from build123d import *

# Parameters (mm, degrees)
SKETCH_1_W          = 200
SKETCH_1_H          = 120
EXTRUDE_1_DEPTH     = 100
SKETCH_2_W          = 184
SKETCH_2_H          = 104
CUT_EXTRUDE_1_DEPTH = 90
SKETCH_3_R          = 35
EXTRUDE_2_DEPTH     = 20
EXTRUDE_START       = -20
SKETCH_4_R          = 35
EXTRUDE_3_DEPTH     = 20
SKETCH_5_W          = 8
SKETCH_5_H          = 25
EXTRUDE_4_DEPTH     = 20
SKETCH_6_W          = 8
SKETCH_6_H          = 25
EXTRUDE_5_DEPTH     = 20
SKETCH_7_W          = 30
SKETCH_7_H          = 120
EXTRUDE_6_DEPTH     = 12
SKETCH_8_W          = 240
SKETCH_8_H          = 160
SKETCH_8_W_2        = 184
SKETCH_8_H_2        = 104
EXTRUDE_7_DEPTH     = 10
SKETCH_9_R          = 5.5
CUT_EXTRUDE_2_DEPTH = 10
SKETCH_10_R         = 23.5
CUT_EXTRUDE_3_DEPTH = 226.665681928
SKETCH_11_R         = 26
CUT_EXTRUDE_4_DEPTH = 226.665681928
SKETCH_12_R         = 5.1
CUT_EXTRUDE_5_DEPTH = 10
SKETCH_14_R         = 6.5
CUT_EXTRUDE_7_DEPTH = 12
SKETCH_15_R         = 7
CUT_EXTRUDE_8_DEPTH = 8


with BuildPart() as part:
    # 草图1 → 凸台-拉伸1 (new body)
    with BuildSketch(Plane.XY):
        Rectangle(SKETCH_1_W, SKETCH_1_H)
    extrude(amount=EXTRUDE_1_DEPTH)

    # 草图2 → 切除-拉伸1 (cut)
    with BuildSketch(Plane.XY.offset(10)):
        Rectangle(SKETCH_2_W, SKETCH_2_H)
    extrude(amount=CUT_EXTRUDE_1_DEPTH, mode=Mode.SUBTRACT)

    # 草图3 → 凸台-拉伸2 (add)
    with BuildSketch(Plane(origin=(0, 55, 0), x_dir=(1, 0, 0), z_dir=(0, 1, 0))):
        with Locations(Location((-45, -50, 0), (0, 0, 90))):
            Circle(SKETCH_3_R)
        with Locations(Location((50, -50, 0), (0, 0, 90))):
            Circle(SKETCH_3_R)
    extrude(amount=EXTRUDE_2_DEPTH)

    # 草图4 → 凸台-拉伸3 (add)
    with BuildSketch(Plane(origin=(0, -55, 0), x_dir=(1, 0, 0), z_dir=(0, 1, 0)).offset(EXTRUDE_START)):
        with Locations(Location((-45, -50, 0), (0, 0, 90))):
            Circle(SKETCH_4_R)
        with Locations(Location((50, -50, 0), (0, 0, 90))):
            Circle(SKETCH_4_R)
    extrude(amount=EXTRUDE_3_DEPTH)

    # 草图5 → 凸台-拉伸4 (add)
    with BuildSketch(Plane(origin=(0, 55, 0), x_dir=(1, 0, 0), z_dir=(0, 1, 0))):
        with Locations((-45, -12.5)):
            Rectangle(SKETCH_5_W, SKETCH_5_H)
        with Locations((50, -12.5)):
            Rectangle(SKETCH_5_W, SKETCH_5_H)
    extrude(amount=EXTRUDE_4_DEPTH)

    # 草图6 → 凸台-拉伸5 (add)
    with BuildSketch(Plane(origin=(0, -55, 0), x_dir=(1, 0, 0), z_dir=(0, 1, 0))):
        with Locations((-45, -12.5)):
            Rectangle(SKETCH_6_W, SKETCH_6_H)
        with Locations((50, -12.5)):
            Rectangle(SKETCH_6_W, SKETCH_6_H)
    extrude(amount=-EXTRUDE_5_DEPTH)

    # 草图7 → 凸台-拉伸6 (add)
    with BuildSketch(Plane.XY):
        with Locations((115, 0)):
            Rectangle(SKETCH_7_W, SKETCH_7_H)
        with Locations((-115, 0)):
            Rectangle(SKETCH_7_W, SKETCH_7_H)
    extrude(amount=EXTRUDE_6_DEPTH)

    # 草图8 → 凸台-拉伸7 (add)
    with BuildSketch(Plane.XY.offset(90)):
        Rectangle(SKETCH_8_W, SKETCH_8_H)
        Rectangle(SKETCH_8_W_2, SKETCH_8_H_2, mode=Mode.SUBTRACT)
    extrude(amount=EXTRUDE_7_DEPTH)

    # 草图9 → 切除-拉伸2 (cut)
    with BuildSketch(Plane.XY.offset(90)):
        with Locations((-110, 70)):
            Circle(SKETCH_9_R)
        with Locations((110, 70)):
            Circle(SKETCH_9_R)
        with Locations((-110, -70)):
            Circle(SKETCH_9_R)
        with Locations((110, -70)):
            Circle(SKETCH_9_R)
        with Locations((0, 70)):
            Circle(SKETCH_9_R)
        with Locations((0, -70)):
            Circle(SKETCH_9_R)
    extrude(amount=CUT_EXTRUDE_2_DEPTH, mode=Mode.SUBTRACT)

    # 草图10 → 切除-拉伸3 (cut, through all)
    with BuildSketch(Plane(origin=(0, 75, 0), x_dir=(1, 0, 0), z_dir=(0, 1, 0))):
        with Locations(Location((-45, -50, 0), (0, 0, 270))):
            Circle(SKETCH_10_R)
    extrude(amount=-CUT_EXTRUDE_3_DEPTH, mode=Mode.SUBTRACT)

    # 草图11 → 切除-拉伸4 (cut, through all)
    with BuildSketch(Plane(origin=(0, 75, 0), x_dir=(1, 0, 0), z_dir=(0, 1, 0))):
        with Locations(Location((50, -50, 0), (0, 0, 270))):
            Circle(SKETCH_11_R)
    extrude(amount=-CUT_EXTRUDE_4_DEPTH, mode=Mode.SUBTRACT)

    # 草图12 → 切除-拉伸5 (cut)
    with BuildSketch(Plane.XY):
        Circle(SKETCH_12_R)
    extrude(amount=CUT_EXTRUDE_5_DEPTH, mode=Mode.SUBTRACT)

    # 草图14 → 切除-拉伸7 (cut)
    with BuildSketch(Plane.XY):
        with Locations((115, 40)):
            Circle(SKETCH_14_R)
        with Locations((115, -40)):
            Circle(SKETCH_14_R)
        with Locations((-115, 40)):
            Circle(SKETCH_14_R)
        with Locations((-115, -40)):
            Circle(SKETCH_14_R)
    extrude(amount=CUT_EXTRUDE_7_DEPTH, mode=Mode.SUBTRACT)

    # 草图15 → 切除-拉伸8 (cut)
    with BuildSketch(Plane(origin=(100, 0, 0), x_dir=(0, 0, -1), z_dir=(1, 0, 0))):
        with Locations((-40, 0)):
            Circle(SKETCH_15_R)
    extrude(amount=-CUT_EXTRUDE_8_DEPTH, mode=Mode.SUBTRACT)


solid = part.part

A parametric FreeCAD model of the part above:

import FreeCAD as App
import Part
import Sketcher
from FreeCAD import Vector


def add_polygon(sketch, points):
    """Adds a closed chain of lines whose ends are joined by coincident constraints."""
    first, n = sketch.GeometryCount, len(points)
    for a, b in zip(points, points[1:] + points[:1]):
        sketch.addGeometry(Part.LineSegment(App.Vector(*a, 0), App.Vector(*b, 0)), False)
    for i in range(n):
        sketch.addConstraint(Sketcher.Constraint("Coincident", first + i, 2, first + (i + 1) % n, 1))

doc = App.newDocument("Part")
body = doc.addObject("PartDesign::Body", "Body")

sketch1 = body.newObject("Sketcher::SketchObject", "Sketch")
sketch1.AttachmentSupport = (doc.getObject("XY_Plane"), [""])
sketch1.MapMode = "FlatFace"
add_polygon(sketch1, [(-100, 60), (-100, -60), (100, -60), (100, 60)])
sketch1.addConstraint([
    Sketcher.Constraint("Vertical", 0),
    Sketcher.Constraint("Horizontal", 1),
    Sketcher.Constraint("Vertical", 2),
    Sketcher.Constraint("Horizontal", 3),
    Sketcher.Constraint("Symmetric", 0, 2, 2, 2, -1, 1),
    Sketcher.Constraint("DistanceX", 1, 1, 1, 2, 200.0),
    Sketcher.Constraint("DistanceY", 0, 2, 0, 1, 120.0),
])
pad1 = body.newObject("PartDesign::Pad", "Pad")
pad1.Profile = sketch1
pad1.Length = 100

sketch2 = body.newObject("Sketcher::SketchObject", "Sketch001")
sketch2.AttachmentSupport = (doc.getObject("XY_Plane"), [""])
sketch2.MapMode = "FlatFace"
sketch2.AttachmentOffset = App.Placement(Vector(0, 0, 10), App.Rotation())
add_polygon(sketch2, [(-92, 52), (-92, -52), (92, -52), (92, 52)])
sketch2.addConstraint([
    Sketcher.Constraint("Vertical", 0),
    Sketcher.Constraint("Horizontal", 1),
    Sketcher.Constraint("Vertical", 2),
    Sketcher.Constraint("Horizontal", 3),
    Sketcher.Constraint("Symmetric", 0, 2, 2, 2, -1, 1),
    Sketcher.Constraint("DistanceX", 1, 1, 1, 2, 184.0),
    Sketcher.Constraint("DistanceY", 0, 2, 0, 1, 104.0),
])
pocket1 = body.newObject("PartDesign::Pocket", "Pocket")
pocket1.Profile = sketch2
pocket1.Length = 90
pocket1.Reversed = True

sketch3 = body.newObject("Sketcher::SketchObject", "Sketch002")
sketch3.AttachmentSupport = (doc.getObject("XZ_Plane"), [""])
sketch3.MapMode = "FlatFace"
sketch3.AttachmentOffset = App.Placement(Vector(0, 0, -55), App.Rotation())
sketch3.addGeometry([
    Part.Circle(Vector(-45, 50, 0), Vector(0, 0, 1), 35),
    Part.Circle(Vector(50, 50, 0), Vector(0, 0, 1), 35),
], False)
sketch3.addConstraint([
    Sketcher.Constraint("Equal", 0, 1),
    Sketcher.Constraint("Horizontal", 0, 3, 1, 3),
    Sketcher.Constraint("Diameter", 0, 70.0),
    Sketcher.Constraint("DistanceX", 0, 3, -1, 1, 45.0),
    Sketcher.Constraint("DistanceY", -1, 1, 0, 3, 50.0),
    Sketcher.Constraint("DistanceX", -1, 1, 1, 3, 50.0),
])
pad2 = body.newObject("PartDesign::Pad", "Pad001")
pad2.Profile = sketch3
pad2.Length = 20
pad2.Reversed = True

sketch4 = body.newObject("Sketcher::SketchObject", "Sketch003")
sketch4.AttachmentSupport = (doc.getObject("XZ_Plane"), [""])
sketch4.MapMode = "FlatFace"
sketch4.AttachmentOffset = App.Placement(Vector(0, 0, 75), App.Rotation())
sketch4.addGeometry([
    Part.Circle(Vector(-45, 50, 0), Vector(0, 0, 1), 35),
    Part.Circle(Vector(50, 50, 0), Vector(0, 0, 1), 35),
], False)
sketch4.addConstraint([
    Sketcher.Constraint("Equal", 0, 1),
    Sketcher.Constraint("Horizontal", 0, 3, 1, 3),
    Sketcher.Constraint("Diameter", 0, 70.0),
    Sketcher.Constraint("DistanceX", 0, 3, -1, 1, 45.0),
    Sketcher.Constraint("DistanceY", -1, 1, 0, 3, 50.0),
    Sketcher.Constraint("DistanceX", -1, 1, 1, 3, 50.0),
])
pad3 = body.newObject("PartDesign::Pad", "Pad002")
pad3.Profile = sketch4
pad3.Length = 20
pad3.Reversed = True

sketch5 = body.newObject("Sketcher::SketchObject", "Sketch004")
sketch5.AttachmentSupport = (doc.getObject("XZ_Plane"), [""])
sketch5.MapMode = "FlatFace"
sketch5.AttachmentOffset = App.Placement(Vector(0, 0, -55), App.Rotation())
add_polygon(sketch5, [(-49, 0), (-49, 25), (-41, 25), (-41, 0)])
add_polygon(sketch5, [(46, 0), (46, 25), (54, 25), (54, 0)])
sketch5.addConstraint([
    Sketcher.Constraint("Vertical", 0),
    Sketcher.Constraint("Horizontal", 1),
    Sketcher.Constraint("Vertical", 2),
    Sketcher.Constraint("Horizontal", 3),
    Sketcher.Constraint("Vertical", 4),
    Sketcher.Constraint("Horizontal", 5),
    Sketcher.Constraint("Vertical", 6),
    Sketcher.Constraint("Horizontal", 7),
    Sketcher.Constraint("PointOnObject", 2, 2, -1),
    Sketcher.Constraint("PointOnObject", 6, 2, -1),
    Sketcher.Constraint("Horizontal", 1, 2, 4, 2),
    Sketcher.Constraint("Equal", 3, 5),
    Sketcher.Constraint("DistanceX", 1, 1, 1, 2, 8.0),
    Sketcher.Constraint("DistanceY", 0, 1, 0, 2, 25.0),
    Sketcher.Constraint("DistanceX", 0, 2, -1, 1, 49.0),
    Sketcher.Constraint("DistanceX", -1, 1, 4, 2, 46.0),
])
pad4 = body.newObject("PartDesign::Pad", "Pad003")
pad4.Profile = sketch5
pad4.Length = 20
pad4.Reversed = True

sketch6 = body.newObject("Sketcher::SketchObject", "Sketch005")
sketch6.AttachmentSupport = (doc.getObject("XZ_Plane"), [""])
sketch6.MapMode = "FlatFace"
sketch6.AttachmentOffset = App.Placement(Vector(0, 0, 55), App.Rotation())
add_polygon(sketch6, [(-49, 0), (-49, 25), (-41, 25), (-41, 0)])
add_polygon(sketch6, [(46, 0), (46, 25), (54, 25), (54, 0)])
sketch6.addConstraint([
    Sketcher.Constraint("Vertical", 0),
    Sketcher.Constraint("Horizontal", 1),
    Sketcher.Constraint("Vertical", 2),
    Sketcher.Constraint("Horizontal", 3),
    Sketcher.Constraint("Vertical", 4),
    Sketcher.Constraint("Horizontal", 5),
    Sketcher.Constraint("Vertical", 6),
    Sketcher.Constraint("Horizontal", 7),
    Sketcher.Constraint("PointOnObject", 2, 2, -1),
    Sketcher.Constraint("PointOnObject", 6, 2, -1),
    Sketcher.Constraint("Horizontal", 1, 2, 4, 2),
    Sketcher.Constraint("Equal", 3, 5),
    Sketcher.Constraint("DistanceX", 1, 1, 1, 2, 8.0),
    Sketcher.Constraint("DistanceY", 0, 1, 0, 2, 25.0),
    Sketcher.Constraint("DistanceX", 0, 2, -1, 1, 49.0),
    Sketcher.Constraint("DistanceX", -1, 1, 4, 2, 46.0),
])
pad5 = body.newObject("PartDesign::Pad", "Pad004")
pad5.Profile = sketch6
pad5.Length = 20

sketch7 = body.newObject("Sketcher::SketchObject", "Sketch006")
sketch7.AttachmentSupport = (doc.getObject("XY_Plane"), [""])
sketch7.MapMode = "FlatFace"
add_polygon(sketch7, [(100, 60), (100, -60), (130, -60), (130, 60)])
add_polygon(sketch7, [(-130, 60), (-130, -60), (-100, -60), (-100, 60)])
sketch7.addConstraint([
    Sketcher.Constraint("Vertical", 0),
    Sketcher.Constraint("Horizontal", 1),
    Sketcher.Constraint("Vertical", 2),
    Sketcher.Constraint("Horizontal", 3),
    Sketcher.Constraint("Vertical", 4),
    Sketcher.Constraint("Horizontal", 5),
    Sketcher.Constraint("Vertical", 6),
    Sketcher.Constraint("Horizontal", 7),
    Sketcher.Constraint("Symmetric", 2, 2, 4, 2, -1, 1),
    Sketcher.Constraint("Symmetric", 0, 2, 6, 2, -1, 1),
    Sketcher.Constraint("Horizontal", 1, 2, 4, 2),
    Sketcher.Constraint("DistanceX", 1, 1, 1, 2, 30.0),
    Sketcher.Constraint("DistanceY", 0, 2, 0, 1, 120.0),
    Sketcher.Constraint("DistanceX", -1, 1, 0, 2, 100.0),
])
pad6 = body.newObject("PartDesign::Pad", "Pad005")
pad6.Profile = sketch7
pad6.Length = 12

sketch8 = body.newObject("Sketcher::SketchObject", "Sketch007")
sketch8.AttachmentSupport = (doc.getObject("XY_Plane"), [""])
sketch8.MapMode = "FlatFace"
sketch8.AttachmentOffset = App.Placement(Vector(0, 0, 90), App.Rotation())
add_polygon(sketch8, [(-120, 80), (-120, -80), (120, -80), (120, 80)])
add_polygon(sketch8, [(92, -52), (-92, -52), (-92, 52), (92, 52)])
sketch8.addConstraint([
    Sketcher.Constraint("Vertical", 0),
    Sketcher.Constraint("Horizontal", 1),
    Sketcher.Constraint("Vertical", 2),
    Sketcher.Constraint("Horizontal", 3),
    Sketcher.Constraint("Horizontal", 4),
    Sketcher.Constraint("Vertical", 5),
    Sketcher.Constraint("Horizontal", 6),
    Sketcher.Constraint("Vertical", 7),
    Sketcher.Constraint("Symmetric", 0, 2, 2, 2, -1, 1),
    Sketcher.Constraint("Symmetric", 4, 2, 6, 2, -1, 1),
    Sketcher.Constraint("DistanceX", 1, 1, 1, 2, 240.0),
    Sketcher.Constraint("DistanceX", 4, 2, 4, 1, 184.0),
    Sketcher.Constraint("DistanceY", 0, 2, 0, 1, 160.0),
    Sketcher.Constraint("DistanceY", 5, 1, 5, 2, 104.0),
])
pad7 = body.newObject("PartDesign::Pad", "Pad006")
pad7.Profile = sketch8
pad7.Length = 10

sketch9 = body.newObject("Sketcher::SketchObject", "Sketch008")
sketch9.AttachmentSupport = (doc.getObject("XY_Plane"), [""])
sketch9.MapMode = "FlatFace"
sketch9.AttachmentOffset = App.Placement(Vector(0, 0, 90), App.Rotation())
sketch9.addGeometry([
    Part.Circle(Vector(-110, 70, 0), Vector(0, 0, 1), 6),
    Part.Circle(Vector(110, 70, 0), Vector(0, 0, 1), 6),
    Part.Circle(Vector(-110, -70, 0), Vector(0, 0, 1), 6),
    Part.Circle(Vector(110, -70, 0), Vector(0, 0, 1), 6),
    Part.Circle(Vector(0, 70, 0), Vector(0, 0, 1), 6),
    Part.Circle(Vector(0, -70, 0), Vector(0, 0, 1), 6),
], False)
sketch9.addConstraint([
    Sketcher.Constraint("Equal", 0, 1),
    Sketcher.Constraint("Equal", 1, 2),
    Sketcher.Constraint("Equal", 2, 3),
    Sketcher.Constraint("Equal", 3, 4),
    Sketcher.Constraint("Equal", 4, 5),
    Sketcher.Constraint("Symmetric", 1, 3, 2, 3, -1, 1),
    Sketcher.Constraint("Symmetric", 0, 3, 3, 3, -1, 1),
    Sketcher.Constraint("Symmetric", 4, 3, 5, 3, -1, 1),
    Sketcher.Constraint("Symmetric", 0, 3, 1, 3, -2),
    Sketcher.Constraint("PointOnObject", 4, 3, -2),
    Sketcher.Constraint("Horizontal", 1, 3, 4, 3),
    Sketcher.Constraint("Diameter", 0, 11.0),
    Sketcher.Constraint("DistanceX", 0, 3, -1, 1, 110.0),
    Sketcher.Constraint("DistanceY", -1, 1, 0, 3, 70.0),
])
pocket2 = body.newObject("PartDesign::Pocket", "Pocket001")
pocket2.Profile = sketch9
pocket2.Length = 10
pocket2.Reversed = True

sketch10 = body.newObject("Sketcher::SketchObject", "Sketch009")
sketch10.AttachmentSupport = (doc.getObject("XZ_Plane"), [""])
sketch10.MapMode = "FlatFace"
sketch10.AttachmentOffset = App.Placement(Vector(0, 0, -75), App.Rotation())
sketch10.addGeometry(Part.Circle(Vector(-45, 50, 0), Vector(0, 0, 1), 24), False)
sketch10.addConstraint([
    Sketcher.Constraint("Diameter", 0, 47.0),
    Sketcher.Constraint("DistanceX", 0, 3, -1, 1, 45.0),
    Sketcher.Constraint("DistanceY", -1, 1, 0, 3, 50.0),
])
pocket3 = body.newObject("PartDesign::Pocket", "Pocket002")
pocket3.Profile = sketch10
pocket3.Type = "ThroughAll"
pocket3.Reversed = True

sketch11 = body.newObject("Sketcher::SketchObject", "Sketch010")
sketch11.AttachmentSupport = (doc.getObject("XZ_Plane"), [""])
sketch11.MapMode = "FlatFace"
sketch11.AttachmentOffset = App.Placement(Vector(0, 0, -75), App.Rotation())
sketch11.addGeometry(Part.Circle(Vector(50, 50, 0), Vector(0, 0, 1), 26), False)
sketch11.addConstraint([
    Sketcher.Constraint("Diameter", 0, 52.0),
    Sketcher.Constraint("DistanceX", -1, 1, 0, 3, 50.0),
    Sketcher.Constraint("DistanceY", -1, 1, 0, 3, 50.0),
])
pocket4 = body.newObject("PartDesign::Pocket", "Pocket003")
pocket4.Profile = sketch11
pocket4.Type = "ThroughAll"
pocket4.Reversed = True

sketch12 = body.newObject("Sketcher::SketchObject", "Sketch011")
sketch12.AttachmentSupport = (doc.getObject("XY_Plane"), [""])
sketch12.MapMode = "FlatFace"
sketch12.addGeometry(Part.Circle(Vector(0, 0, 0), Vector(0, 0, 1), 5), False)
sketch12.addConstraint([
    Sketcher.Constraint("Coincident", 0, 3, -1, 1),
    Sketcher.Constraint("Diameter", 0, 10.2),
])
pocket5 = body.newObject("PartDesign::Pocket", "Pocket004")
pocket5.Profile = sketch12
pocket5.Length = 10
pocket5.Reversed = True

sketch13 = body.newObject("Sketcher::SketchObject", "Sketch012")
sketch13.AttachmentSupport = (doc.getObject("XY_Plane"), [""])
sketch13.MapMode = "FlatFace"
sketch13.addGeometry([
    Part.Circle(Vector(115, 40, 0), Vector(0, 0, 1), 6),
    Part.Circle(Vector(115, -40, 0), Vector(0, 0, 1), 6),
    Part.Circle(Vector(-115, 40, 0), Vector(0, 0, 1), 6),
    Part.Circle(Vector(-115, -40, 0), Vector(0, 0, 1), 6),
], False)
sketch13.addConstraint([
    Sketcher.Constraint("Equal", 0, 1),
    Sketcher.Constraint("Equal", 1, 2),
    Sketcher.Constraint("Equal", 2, 3),
    Sketcher.Constraint("Symmetric", 1, 3, 2, 3, -1, 1),
    Sketcher.Constraint("Symmetric", 0, 3, 3, 3, -1, 1),
    Sketcher.Constraint("Symmetric", 0, 3, 2, 3, -2),
    Sketcher.Constraint("Diameter", 0, 13.0),
    Sketcher.Constraint("DistanceX", -1, 1, 0, 3, 115.0),
    Sketcher.Constraint("DistanceY", -1, 1, 0, 3, 40.0),
])
pocket6 = body.newObject("PartDesign::Pocket", "Pocket005")
pocket6.Profile = sketch13
pocket6.Length = 12
pocket6.Reversed = True

sketch14 = body.newObject("Sketcher::SketchObject", "Sketch013")
sketch14.AttachmentSupport = (doc.getObject("YZ_Plane"), [""])
sketch14.MapMode = "FlatFace"
sketch14.AttachmentOffset = App.Placement(Vector(0, 0, 100), App.Rotation())
sketch14.addGeometry(Part.Circle(Vector(0, 40, 0), Vector(0, 0, 1), 7), False)
sketch14.addConstraint([
    Sketcher.Constraint("PointOnObject", 0, 3, -2),
    Sketcher.Constraint("Diameter", 0, 14.0),
    Sketcher.Constraint("DistanceY", -1, 1, 0, 3, 40.0),
])
pocket7 = body.newObject("PartDesign::Pocket", "Pocket006")
pocket7.Profile = sketch14
pocket7.Length = 8

doc.recompute()
